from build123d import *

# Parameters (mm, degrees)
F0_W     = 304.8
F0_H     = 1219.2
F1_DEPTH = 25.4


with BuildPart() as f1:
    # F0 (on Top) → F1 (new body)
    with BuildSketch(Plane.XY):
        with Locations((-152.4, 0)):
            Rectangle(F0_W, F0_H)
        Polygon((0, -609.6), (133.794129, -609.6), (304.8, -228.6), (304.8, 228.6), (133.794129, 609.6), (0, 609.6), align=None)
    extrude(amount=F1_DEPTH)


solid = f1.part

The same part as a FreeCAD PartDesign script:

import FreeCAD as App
import Part
import Sketcher

V = App.Vector
Q = App.Units.Quantity

doc = App.newDocument("Part")
body = doc.addObject("PartDesign::Body", "Body")

# Sketch on XY plane
sketch1 = body.newObject("Sketcher::SketchObject", "Sketch")
sketch1.AttachmentSupport = (doc.getObject("XY_Plane"), [""])
sketch1.MapMode = "FlatFace"
sketch1.addGeometry(Part.LineSegment(V(-305, 610, 0), V(-305, -610, 0)), False)
sketch1.addGeometry(Part.LineSegment(V(-305, -610, 0), V(134, -610, 0)), False)
sketch1.addGeometry(Part.LineSegment(V(134, -610, 0), V(305, -229, 0)), False)
sketch1.addGeometry(Part.LineSegment(V(305, -229, 0), V(305, 229, 0)), False)
sketch1.addGeometry(Part.LineSegment(V(305, 229, 0), V(134, 610, 0)), False)
sketch1.addGeometry(Part.LineSegment(V(134, 610, 0), V(-305, 610, 0)), False)
sketch1.addConstraint(Sketcher.Constraint("Coincident", 0, 2, 1, 1))
sketch1.addConstraint(Sketcher.Constraint("Coincident", 1, 2, 2, 1))
sketch1.addConstraint(Sketcher.Constraint("Coincident", 2, 2, 3, 1))
sketch1.addConstraint(Sketcher.Constraint("Coincident", 3, 2, 4, 1))
sketch1.addConstraint(Sketcher.Constraint("Coincident", 4, 2, 5, 1))
sketch1.addConstraint(Sketcher.Constraint("Coincident", 5, 2, 0, 1))
sketch1.addConstraint(Sketcher.Constraint("Vertical", 0))
sketch1.addConstraint(Sketcher.Constraint("Horizontal", 1))
sketch1.addConstraint(Sketcher.Constraint("Vertical", 3))
sketch1.addConstraint(Sketcher.Constraint("Horizontal", 5))
sketch1.addConstraint(Sketcher.Constraint("Symmetric", 1, 2, 4, 2, -1))
sketch1.addConstraint(Sketcher.Constraint("Equal", 2, 4))
sketch1.addConstraint(Sketcher.Constraint("DistanceY", 0, 2, 0, 1, Q("48 in")))
sketch1.addConstraint(Sketcher.Constraint("DistanceY", 3, 1, 3, 2, Q("18 in")))
sketch1.addConstraint(Sketcher.Constraint("DistanceX", 0, 2, -1, 1, Q("12 in")))
sketch1.addConstraint(Sketcher.Constraint("DistanceX", -1, 1, 2, 2, Q("12 in")))
sketch1.addConstraint(Sketcher.Constraint("DistanceX", 1, 1, 1, 2, Q("438.594129 mm")))
pad1 = body.newObject("PartDesign::Pad", "Pad")
pad1.Profile = sketch1
pad1.Length = Q("1 in")

doc.recompute()
